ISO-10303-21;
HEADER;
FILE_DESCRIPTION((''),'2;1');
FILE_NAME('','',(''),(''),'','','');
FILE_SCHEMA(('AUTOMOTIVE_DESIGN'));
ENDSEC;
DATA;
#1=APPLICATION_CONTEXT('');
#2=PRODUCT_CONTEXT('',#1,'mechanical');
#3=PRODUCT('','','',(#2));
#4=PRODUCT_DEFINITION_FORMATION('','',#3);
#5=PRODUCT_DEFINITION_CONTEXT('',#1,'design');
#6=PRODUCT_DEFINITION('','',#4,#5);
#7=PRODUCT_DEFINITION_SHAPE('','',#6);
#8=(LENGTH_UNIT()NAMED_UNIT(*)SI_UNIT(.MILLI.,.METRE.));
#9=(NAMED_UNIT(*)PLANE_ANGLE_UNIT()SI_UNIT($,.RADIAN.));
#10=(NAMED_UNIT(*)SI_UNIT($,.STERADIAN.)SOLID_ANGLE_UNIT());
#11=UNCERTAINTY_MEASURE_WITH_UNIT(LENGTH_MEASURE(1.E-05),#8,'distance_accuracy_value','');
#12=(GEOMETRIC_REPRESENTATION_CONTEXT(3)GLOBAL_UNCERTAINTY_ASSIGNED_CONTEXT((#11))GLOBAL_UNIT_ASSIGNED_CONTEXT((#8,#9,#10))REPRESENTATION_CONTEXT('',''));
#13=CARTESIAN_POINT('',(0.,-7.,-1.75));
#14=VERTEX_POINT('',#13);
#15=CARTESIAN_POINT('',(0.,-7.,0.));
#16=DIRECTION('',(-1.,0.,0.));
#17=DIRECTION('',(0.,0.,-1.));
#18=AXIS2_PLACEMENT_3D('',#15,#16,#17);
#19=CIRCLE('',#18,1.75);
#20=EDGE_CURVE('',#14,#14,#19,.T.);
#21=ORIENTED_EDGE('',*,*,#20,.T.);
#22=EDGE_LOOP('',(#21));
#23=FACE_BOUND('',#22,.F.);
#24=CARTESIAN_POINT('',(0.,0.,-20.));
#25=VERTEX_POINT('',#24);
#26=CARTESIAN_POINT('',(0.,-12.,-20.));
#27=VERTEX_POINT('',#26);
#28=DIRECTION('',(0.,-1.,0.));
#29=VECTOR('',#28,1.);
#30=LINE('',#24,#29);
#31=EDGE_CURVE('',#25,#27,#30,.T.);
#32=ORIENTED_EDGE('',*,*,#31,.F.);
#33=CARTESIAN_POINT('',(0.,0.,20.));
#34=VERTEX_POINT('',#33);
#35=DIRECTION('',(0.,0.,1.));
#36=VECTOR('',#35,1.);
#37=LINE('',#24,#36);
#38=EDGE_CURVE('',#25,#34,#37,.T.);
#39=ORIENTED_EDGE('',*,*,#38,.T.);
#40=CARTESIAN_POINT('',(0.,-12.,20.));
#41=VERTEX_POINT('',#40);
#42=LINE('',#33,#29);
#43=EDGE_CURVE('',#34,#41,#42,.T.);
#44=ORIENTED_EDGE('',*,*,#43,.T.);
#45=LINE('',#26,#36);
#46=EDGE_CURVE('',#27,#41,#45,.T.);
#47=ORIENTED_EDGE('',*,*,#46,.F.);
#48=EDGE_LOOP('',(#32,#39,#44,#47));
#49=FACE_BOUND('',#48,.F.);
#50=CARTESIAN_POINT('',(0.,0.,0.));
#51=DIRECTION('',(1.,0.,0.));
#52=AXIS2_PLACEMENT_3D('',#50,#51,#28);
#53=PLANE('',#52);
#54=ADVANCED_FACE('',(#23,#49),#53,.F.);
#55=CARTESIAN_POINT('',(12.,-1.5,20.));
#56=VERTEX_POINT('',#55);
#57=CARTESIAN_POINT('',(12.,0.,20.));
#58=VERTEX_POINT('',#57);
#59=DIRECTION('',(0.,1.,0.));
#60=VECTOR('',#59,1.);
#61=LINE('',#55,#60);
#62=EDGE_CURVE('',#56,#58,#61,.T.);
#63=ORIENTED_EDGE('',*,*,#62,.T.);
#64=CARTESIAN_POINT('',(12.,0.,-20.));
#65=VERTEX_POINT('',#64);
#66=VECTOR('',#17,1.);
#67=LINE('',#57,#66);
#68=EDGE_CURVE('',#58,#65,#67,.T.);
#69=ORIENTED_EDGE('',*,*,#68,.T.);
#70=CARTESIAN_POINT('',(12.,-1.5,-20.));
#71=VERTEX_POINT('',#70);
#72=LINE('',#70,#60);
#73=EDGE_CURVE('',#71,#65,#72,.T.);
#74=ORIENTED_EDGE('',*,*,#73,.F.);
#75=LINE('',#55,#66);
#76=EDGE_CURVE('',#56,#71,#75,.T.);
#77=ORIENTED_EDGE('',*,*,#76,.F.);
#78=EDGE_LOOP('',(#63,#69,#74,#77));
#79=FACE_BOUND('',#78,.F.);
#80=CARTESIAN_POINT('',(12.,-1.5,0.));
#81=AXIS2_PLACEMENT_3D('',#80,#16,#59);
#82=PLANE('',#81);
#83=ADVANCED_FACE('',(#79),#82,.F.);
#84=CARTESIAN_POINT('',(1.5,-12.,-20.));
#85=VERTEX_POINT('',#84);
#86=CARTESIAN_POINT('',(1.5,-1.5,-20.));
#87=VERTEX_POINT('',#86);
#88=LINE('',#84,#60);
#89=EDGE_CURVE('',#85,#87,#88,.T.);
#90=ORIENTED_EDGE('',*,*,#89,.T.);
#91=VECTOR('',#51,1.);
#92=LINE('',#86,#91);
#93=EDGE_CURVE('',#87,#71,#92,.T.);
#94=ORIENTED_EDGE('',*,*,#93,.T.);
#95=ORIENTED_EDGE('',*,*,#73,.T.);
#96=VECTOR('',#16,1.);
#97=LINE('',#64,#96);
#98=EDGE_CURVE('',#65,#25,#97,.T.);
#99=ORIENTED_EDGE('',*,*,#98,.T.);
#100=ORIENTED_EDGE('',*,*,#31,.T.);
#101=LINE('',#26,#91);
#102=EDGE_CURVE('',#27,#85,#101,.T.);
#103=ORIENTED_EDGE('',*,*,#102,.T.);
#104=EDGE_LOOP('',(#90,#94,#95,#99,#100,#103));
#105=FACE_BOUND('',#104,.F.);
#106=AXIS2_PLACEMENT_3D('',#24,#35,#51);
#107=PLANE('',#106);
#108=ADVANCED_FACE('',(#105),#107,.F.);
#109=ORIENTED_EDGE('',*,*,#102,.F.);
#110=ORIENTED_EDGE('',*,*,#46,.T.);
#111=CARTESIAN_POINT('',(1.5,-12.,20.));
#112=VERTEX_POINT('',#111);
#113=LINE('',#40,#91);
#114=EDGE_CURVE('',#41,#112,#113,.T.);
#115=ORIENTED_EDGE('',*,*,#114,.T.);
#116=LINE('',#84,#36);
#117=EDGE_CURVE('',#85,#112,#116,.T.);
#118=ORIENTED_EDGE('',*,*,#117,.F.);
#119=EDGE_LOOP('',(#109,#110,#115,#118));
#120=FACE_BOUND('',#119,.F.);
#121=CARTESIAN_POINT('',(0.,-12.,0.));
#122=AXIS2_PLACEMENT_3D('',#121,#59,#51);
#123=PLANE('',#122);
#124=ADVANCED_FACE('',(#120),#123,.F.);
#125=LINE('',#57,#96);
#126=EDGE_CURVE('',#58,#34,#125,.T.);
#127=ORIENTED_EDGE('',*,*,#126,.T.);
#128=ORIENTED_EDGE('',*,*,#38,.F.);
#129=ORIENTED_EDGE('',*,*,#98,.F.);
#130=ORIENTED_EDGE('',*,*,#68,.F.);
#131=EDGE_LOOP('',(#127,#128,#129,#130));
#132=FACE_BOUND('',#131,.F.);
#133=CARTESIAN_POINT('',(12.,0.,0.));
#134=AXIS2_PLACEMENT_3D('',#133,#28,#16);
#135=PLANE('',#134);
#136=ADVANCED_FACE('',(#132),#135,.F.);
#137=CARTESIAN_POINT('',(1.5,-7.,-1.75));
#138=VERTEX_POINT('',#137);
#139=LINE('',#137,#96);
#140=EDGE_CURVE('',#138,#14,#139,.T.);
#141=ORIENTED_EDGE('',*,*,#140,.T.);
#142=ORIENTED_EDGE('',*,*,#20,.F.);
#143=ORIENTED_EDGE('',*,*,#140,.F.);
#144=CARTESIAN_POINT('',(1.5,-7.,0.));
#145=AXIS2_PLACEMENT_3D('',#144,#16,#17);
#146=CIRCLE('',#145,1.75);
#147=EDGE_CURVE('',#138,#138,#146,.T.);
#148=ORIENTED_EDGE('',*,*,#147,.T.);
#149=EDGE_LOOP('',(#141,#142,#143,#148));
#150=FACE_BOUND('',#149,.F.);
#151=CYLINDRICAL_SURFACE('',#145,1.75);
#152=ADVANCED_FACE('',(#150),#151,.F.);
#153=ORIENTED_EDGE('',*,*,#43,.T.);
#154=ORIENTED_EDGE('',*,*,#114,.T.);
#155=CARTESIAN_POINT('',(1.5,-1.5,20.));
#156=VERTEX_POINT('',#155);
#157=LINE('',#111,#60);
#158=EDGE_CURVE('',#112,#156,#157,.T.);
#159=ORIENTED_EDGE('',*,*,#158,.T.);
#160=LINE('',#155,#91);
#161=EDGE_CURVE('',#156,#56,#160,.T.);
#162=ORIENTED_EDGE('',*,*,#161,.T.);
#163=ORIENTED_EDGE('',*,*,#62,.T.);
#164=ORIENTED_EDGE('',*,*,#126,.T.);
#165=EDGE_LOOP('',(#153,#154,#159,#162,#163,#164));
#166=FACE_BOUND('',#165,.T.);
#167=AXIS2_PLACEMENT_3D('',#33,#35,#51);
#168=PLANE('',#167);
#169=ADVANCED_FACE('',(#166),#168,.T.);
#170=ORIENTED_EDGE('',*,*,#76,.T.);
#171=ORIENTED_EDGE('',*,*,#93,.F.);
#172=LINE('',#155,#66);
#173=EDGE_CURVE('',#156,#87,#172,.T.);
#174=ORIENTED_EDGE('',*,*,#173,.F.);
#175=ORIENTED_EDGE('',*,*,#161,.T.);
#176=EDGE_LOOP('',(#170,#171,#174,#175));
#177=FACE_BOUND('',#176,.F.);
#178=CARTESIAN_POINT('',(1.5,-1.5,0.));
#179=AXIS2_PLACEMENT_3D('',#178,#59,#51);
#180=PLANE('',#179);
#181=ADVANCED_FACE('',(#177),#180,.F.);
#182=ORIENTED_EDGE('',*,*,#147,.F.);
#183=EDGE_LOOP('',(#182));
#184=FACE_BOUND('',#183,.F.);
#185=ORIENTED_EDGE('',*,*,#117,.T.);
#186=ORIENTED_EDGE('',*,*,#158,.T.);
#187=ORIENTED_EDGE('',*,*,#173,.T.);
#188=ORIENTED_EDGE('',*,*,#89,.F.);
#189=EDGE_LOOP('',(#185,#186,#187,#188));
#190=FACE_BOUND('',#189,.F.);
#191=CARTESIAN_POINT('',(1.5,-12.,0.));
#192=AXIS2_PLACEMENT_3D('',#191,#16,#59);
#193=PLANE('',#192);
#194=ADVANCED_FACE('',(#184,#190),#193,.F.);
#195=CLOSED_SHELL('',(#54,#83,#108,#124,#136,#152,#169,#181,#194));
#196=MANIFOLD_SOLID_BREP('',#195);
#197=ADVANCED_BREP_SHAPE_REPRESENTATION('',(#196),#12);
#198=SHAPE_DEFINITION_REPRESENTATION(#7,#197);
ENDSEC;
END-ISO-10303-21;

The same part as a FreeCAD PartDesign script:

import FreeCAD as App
import Part
import Sketcher

V = App.Vector

doc = App.newDocument("Part")
params = doc.addObject("Spreadsheet::Sheet", "Params")
for row, (alias, value) in enumerate([
    ("sketch1_width", "12 mm"),
    ("sketch1_width2", "1.5 mm"),
    ("pad1_length", "40 mm"),
    ("sketch2_diameter", "3.5 mm"),
    ("hole_diameter", "3.5 mm"),
], start=1):
    params.set(f"A{row}", alias)
    params.set(f"B{row}", "=" + value)
    params.setAlias(f"B{row}", alias)

body = doc.addObject("PartDesign::Body", "Body")

# Sketch on XY plane
sketch1 = body.newObject("Sketcher::SketchObject", "Sketch")
sketch1.AttachmentSupport = (doc.getObject("XY_Plane"), [""])
sketch1.MapMode = "FlatFace"
sketch1.addGeometry([
    Part.LineSegment(V(12, 0, 0), V(0, 0, 0)),  # 0
    Part.LineSegment(V(0, 0, 0), V(0, -12, 0)),  # 1
    Part.LineSegment(V(0, -12, 0), V(1.5, -12, 0)),  # 2
    Part.LineSegment(V(1.5, -12, 0), V(1.5, -1.5, 0)),  # 3
    Part.LineSegment(V(1.5, -1.5, 0), V(12, -1.5, 0)),  # 4
    Part.LineSegment(V(12, -1.5, 0), V(12, 0, 0)),  # 5
], False)
sketch1.addConstraint([
    Sketcher.Constraint("Coincident", 0, 2, 1, 1),
    Sketcher.Constraint("Coincident", 1, 2, 2, 1),
    Sketcher.Constraint("Coincident", 2, 2, 3, 1),
    Sketcher.Constraint("Coincident", 3, 2, 4, 1),
    Sketcher.Constraint("Coincident", 4, 2, 5, 1),
    Sketcher.Constraint("Coincident", 5, 2, 0, 1),
    Sketcher.Constraint("Horizontal", 0),
    Sketcher.Constraint("Vertical", 1),
    Sketcher.Constraint("Horizontal", 2),
    Sketcher.Constraint("Vertical", 3),
    Sketcher.Constraint("Horizontal", 4),
    Sketcher.Constraint("Vertical", 5),
    Sketcher.Constraint("Coincident", 0, 2, -1, 1),
    Sketcher.Constraint("Equal", 0, 1),
    Sketcher.Constraint("Equal", 4, 3),
    Sketcher.Constraint("DistanceX", 0, 2, 0, 1, 12.0),
    Sketcher.Constraint("DistanceX", 2, 1, 2, 2, 1.5),
])
sketch1.setExpression("Constraints[15]", "Params.sketch1_width")
sketch1.setExpression("Constraints[16]", "Params.sketch1_width2")
pad1 = body.newObject("PartDesign::Pad", "Pad")
pad1.Profile = sketch1
pad1.setExpression("Length", "Params.pad1_length")
pad1.Midplane = True

# Sketch on YZ plane
sketch2 = body.newObject("Sketcher::SketchObject", "Sketch001")
sketch2.AttachmentSupport = (doc.getObject("YZ_Plane"), [""])
sketch2.MapMode = "FlatFace"
sketch2.AttachmentOffset = App.Placement(V(0, 0, 1.5), App.Rotation())
sketch2.addGeometry(Part.Circle(V(-7, 0, 0), V(0, 0, 1), 1.8), False)
sketch2.addConstraint([
    Sketcher.Constraint("PointOnObject", 0, 3, -1),
    Sketcher.Constraint("Diameter", 0, 3.5),
    Sketcher.Constraint("DistanceX", 0, 3, -1, 1, 7.0),
])
sketch2.setExpression("Constraints[1]", "Params.sketch2_diameter")
doc.recompute()
hole = body.newObject("PartDesign::Hole", "Hole")
hole.Profile = sketch2
hole.ThreadType = "None"
hole.setExpression("Diameter", "Params.hole_diameter")
hole.DepthType = "ThroughAll"

doc.recompute()
